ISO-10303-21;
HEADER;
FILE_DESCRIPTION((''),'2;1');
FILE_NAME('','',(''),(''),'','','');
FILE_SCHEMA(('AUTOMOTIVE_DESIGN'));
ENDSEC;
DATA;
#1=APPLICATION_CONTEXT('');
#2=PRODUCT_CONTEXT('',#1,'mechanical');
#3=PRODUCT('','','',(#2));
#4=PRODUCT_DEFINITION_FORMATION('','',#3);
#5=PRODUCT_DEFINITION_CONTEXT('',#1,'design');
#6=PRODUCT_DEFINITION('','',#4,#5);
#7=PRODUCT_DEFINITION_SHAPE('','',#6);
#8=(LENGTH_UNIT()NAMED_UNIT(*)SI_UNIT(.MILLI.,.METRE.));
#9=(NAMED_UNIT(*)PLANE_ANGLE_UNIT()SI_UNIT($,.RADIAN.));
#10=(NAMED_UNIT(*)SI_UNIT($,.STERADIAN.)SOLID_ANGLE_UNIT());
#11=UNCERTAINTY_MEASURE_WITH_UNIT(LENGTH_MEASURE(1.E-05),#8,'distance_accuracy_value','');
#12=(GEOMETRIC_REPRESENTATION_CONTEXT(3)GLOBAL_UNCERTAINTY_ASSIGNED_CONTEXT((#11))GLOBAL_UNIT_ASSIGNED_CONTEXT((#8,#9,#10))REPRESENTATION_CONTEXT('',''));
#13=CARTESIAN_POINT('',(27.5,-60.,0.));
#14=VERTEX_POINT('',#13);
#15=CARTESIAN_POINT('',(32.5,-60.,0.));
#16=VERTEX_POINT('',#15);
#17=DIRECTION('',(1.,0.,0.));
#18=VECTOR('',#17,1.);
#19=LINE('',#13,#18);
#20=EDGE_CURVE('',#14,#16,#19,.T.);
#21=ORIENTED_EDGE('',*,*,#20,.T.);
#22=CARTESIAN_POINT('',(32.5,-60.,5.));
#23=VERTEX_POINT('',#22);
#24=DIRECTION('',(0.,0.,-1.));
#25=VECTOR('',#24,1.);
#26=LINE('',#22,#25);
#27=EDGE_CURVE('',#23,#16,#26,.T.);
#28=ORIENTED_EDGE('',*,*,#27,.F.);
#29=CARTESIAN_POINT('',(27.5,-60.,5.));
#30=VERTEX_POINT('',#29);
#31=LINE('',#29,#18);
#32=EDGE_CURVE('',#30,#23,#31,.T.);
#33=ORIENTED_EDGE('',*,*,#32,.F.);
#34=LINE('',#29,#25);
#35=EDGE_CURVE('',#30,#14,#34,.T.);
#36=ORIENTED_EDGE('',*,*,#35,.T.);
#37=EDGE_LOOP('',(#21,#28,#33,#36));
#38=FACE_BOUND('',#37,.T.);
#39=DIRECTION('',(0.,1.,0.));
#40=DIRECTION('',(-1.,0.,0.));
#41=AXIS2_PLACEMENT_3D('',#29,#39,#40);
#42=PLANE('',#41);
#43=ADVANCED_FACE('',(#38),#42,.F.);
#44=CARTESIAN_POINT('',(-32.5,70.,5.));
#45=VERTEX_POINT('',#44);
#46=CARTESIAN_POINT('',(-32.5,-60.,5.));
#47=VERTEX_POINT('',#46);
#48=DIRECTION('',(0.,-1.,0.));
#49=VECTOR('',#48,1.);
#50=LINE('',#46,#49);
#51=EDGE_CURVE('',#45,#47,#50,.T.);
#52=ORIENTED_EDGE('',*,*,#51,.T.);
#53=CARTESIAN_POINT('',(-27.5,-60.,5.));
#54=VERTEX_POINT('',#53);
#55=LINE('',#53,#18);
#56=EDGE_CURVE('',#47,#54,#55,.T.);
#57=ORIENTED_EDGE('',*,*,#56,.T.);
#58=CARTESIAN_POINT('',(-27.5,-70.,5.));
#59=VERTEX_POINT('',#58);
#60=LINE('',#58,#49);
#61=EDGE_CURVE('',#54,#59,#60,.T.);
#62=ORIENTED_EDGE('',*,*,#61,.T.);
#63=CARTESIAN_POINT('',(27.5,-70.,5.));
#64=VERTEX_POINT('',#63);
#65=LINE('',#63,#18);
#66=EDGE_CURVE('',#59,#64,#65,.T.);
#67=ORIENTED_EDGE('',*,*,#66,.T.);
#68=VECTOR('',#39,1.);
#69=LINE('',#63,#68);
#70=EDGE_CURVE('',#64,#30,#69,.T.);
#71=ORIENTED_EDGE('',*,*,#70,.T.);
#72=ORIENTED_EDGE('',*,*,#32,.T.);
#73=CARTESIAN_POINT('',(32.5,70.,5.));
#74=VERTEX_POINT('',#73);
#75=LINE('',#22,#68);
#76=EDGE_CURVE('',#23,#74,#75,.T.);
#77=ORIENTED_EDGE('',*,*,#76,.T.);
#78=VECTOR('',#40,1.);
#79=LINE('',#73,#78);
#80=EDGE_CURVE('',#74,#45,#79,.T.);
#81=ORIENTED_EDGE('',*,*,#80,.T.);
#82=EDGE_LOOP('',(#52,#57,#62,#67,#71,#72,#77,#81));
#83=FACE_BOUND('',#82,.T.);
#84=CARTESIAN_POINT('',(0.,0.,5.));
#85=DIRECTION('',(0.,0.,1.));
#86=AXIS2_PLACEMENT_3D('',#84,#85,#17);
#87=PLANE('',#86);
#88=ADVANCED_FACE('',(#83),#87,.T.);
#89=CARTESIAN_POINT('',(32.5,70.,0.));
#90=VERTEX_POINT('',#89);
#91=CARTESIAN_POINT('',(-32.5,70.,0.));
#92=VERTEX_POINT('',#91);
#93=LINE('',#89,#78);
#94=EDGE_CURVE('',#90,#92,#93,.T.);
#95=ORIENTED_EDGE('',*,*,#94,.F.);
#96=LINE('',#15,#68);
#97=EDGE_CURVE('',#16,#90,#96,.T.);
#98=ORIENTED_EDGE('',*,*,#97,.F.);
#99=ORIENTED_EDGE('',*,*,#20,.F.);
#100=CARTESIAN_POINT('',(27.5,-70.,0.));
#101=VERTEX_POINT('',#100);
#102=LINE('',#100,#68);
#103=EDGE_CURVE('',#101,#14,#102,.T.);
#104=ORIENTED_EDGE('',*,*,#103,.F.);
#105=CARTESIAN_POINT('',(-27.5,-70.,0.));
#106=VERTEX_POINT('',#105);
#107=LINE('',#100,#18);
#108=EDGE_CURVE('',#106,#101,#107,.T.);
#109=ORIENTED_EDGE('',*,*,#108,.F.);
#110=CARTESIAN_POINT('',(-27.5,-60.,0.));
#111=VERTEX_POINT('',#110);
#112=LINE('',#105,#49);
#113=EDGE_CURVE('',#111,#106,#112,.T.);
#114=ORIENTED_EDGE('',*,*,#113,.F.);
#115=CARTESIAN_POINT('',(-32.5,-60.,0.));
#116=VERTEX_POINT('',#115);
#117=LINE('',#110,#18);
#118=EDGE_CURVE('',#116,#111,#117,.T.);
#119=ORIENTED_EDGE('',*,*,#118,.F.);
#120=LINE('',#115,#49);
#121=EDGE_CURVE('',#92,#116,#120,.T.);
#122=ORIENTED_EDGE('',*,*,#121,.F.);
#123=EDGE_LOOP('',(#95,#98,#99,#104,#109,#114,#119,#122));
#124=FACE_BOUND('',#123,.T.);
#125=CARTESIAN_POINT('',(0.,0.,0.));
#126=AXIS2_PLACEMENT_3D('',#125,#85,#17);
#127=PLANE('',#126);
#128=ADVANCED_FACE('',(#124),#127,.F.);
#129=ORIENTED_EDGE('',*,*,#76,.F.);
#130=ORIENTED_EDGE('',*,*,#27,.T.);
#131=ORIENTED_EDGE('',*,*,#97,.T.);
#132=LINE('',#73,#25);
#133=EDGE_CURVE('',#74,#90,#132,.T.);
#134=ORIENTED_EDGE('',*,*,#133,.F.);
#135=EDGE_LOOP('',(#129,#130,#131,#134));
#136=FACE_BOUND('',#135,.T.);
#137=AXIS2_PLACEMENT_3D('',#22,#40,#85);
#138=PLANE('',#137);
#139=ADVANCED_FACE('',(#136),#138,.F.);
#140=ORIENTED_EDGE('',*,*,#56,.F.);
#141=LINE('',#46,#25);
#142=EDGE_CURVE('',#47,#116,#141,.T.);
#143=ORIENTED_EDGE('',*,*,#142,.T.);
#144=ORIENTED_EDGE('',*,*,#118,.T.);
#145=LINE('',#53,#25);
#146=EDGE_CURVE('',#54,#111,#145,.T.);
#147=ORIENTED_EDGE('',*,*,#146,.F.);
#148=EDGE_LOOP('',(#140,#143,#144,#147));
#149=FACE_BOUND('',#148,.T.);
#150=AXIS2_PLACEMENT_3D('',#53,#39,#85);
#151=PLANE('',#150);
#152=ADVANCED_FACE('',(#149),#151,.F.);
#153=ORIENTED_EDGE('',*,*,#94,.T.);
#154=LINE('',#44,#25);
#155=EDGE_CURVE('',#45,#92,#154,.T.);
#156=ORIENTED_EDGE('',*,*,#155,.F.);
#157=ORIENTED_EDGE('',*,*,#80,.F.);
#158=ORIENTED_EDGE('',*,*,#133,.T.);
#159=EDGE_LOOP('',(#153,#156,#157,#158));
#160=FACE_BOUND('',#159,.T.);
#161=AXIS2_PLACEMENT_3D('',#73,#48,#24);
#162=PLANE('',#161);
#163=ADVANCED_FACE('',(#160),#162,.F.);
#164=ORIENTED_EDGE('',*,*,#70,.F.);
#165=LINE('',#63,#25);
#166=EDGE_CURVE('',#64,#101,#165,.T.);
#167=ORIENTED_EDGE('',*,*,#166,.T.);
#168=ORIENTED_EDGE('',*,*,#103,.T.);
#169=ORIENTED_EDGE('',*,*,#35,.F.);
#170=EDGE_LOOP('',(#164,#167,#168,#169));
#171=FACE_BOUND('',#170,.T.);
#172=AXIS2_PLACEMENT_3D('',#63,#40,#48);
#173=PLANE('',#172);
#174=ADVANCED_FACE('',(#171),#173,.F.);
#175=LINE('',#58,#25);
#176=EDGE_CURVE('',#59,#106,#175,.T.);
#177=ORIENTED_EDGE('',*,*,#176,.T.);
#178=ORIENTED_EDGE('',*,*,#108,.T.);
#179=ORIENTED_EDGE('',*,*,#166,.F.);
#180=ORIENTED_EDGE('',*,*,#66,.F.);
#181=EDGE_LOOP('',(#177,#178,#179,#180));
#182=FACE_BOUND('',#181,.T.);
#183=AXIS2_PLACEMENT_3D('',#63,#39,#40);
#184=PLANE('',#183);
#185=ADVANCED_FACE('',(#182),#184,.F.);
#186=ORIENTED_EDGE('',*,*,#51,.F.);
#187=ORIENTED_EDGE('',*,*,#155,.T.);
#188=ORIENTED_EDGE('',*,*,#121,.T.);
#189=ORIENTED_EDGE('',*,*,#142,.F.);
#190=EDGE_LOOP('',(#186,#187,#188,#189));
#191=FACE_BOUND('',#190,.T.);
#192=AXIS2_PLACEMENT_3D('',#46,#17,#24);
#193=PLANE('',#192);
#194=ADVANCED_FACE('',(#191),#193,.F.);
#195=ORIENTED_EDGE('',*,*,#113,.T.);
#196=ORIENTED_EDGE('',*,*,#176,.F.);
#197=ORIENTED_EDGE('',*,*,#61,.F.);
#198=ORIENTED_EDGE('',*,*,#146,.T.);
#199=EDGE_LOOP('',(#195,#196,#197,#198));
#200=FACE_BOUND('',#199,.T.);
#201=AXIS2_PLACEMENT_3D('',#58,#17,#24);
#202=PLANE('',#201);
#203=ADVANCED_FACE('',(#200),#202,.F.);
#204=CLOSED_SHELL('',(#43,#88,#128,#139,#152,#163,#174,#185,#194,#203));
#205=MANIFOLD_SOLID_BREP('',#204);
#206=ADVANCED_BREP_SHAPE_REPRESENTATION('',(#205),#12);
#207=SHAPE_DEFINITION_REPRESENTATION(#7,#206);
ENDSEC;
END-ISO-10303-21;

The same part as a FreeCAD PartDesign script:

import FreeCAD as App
import Part
import Sketcher

doc = App.newDocument("Part")
body = doc.addObject("PartDesign::Body", "Body")

# Sketch on XY plane
sketch1 = body.newObject("Sketcher::SketchObject", "Sketch")
sketch1.AttachmentSupport = (doc.getObject("XY_Plane"), [""])
sketch1.MapMode = "FlatFace"
sketch1.addGeometry(Part.LineSegment(App.Vector(-28, -70, 0), App.Vector(28, -70, 0)), False)
sketch1.addGeometry(Part.LineSegment(App.Vector(28, -70, 0), App.Vector(28, -60, 0)), False)
sketch1.addGeometry(Part.LineSegment(App.Vector(28, -60, 0), App.Vector(32, -60, 0)), False)
sketch1.addGeometry(Part.LineSegment(App.Vector(32, -60, 0), App.Vector(32, 70, 0)), False)
sketch1.addGeometry(Part.LineSegment(App.Vector(32, 70, 0), App.Vector(-32, 70, 0)), False)
sketch1.addGeometry(Part.LineSegment(App.Vector(-32, 70, 0), App.Vector(-32, -60, 0)), False)
sketch1.addGeometry(Part.LineSegment(App.Vector(-32, -60, 0), App.Vector(-28, -60, 0)), False)
sketch1.addGeometry(Part.LineSegment(App.Vector(-28, -60, 0), App.Vector(-28, -70, 0)), False)
sketch1.addConstraint(Sketcher.Constraint("Coincident", 0, 2, 1, 1))
sketch1.addConstraint(Sketcher.Constraint("Coincident", 1, 2, 2, 1))
sketch1.addConstraint(Sketcher.Constraint("Coincident", 2, 2, 3, 1))
sketch1.addConstraint(Sketcher.Constraint("Coincident", 3, 2, 4, 1))
sketch1.addConstraint(Sketcher.Constraint("Coincident", 4, 2, 5, 1))
sketch1.addConstraint(Sketcher.Constraint("Coincident", 5, 2, 6, 1))
sketch1.addConstraint(Sketcher.Constraint("Coincident", 6, 2, 7, 1))
sketch1.addConstraint(Sketcher.Constraint("Coincident", 7, 2, 0, 1))
sketch1.addConstraint(Sketcher.Constraint("Horizontal", 0))
sketch1.addConstraint(Sketcher.Constraint("Vertical", 1))
sketch1.addConstraint(Sketcher.Constraint("Horizontal", 2))
sketch1.addConstraint(Sketcher.Constraint("Vertical", 3))
sketch1.addConstraint(Sketcher.Constraint("Horizontal", 4))
sketch1.addConstraint(Sketcher.Constraint("Vertical", 5))
sketch1.addConstraint(Sketcher.Constraint("Horizontal", 6))
sketch1.addConstraint(Sketcher.Constraint("Vertical", 7))
sketch1.addConstraint(Sketcher.Constraint("Symmetric", 2, 2, 5, 2, -2))
sketch1.addConstraint(Sketcher.Constraint("Equal", 2, 6))
sketch1.addConstraint(Sketcher.Constraint("DistanceX", 0, 1, 0, 2, 55.0))
sketch1.addConstraint(Sketcher.Constraint("DistanceX", 2, 1, 2, 2, 5.0))
sketch1.addConstraint(Sketcher.Constraint("DistanceY", 1, 1, 1, 2, 10.0))
sketch1.addConstraint(Sketcher.Constraint("DistanceY", 3, 1, 3, 2, 130.0))
sketch1.addConstraint(Sketcher.Constraint("DistanceY", 0, 2, -1, 1, 70.0))
pad1 = body.newObject("PartDesign::Pad", "Pad")
pad1.Profile = sketch1
pad1.Length = 5

doc.recompute()
